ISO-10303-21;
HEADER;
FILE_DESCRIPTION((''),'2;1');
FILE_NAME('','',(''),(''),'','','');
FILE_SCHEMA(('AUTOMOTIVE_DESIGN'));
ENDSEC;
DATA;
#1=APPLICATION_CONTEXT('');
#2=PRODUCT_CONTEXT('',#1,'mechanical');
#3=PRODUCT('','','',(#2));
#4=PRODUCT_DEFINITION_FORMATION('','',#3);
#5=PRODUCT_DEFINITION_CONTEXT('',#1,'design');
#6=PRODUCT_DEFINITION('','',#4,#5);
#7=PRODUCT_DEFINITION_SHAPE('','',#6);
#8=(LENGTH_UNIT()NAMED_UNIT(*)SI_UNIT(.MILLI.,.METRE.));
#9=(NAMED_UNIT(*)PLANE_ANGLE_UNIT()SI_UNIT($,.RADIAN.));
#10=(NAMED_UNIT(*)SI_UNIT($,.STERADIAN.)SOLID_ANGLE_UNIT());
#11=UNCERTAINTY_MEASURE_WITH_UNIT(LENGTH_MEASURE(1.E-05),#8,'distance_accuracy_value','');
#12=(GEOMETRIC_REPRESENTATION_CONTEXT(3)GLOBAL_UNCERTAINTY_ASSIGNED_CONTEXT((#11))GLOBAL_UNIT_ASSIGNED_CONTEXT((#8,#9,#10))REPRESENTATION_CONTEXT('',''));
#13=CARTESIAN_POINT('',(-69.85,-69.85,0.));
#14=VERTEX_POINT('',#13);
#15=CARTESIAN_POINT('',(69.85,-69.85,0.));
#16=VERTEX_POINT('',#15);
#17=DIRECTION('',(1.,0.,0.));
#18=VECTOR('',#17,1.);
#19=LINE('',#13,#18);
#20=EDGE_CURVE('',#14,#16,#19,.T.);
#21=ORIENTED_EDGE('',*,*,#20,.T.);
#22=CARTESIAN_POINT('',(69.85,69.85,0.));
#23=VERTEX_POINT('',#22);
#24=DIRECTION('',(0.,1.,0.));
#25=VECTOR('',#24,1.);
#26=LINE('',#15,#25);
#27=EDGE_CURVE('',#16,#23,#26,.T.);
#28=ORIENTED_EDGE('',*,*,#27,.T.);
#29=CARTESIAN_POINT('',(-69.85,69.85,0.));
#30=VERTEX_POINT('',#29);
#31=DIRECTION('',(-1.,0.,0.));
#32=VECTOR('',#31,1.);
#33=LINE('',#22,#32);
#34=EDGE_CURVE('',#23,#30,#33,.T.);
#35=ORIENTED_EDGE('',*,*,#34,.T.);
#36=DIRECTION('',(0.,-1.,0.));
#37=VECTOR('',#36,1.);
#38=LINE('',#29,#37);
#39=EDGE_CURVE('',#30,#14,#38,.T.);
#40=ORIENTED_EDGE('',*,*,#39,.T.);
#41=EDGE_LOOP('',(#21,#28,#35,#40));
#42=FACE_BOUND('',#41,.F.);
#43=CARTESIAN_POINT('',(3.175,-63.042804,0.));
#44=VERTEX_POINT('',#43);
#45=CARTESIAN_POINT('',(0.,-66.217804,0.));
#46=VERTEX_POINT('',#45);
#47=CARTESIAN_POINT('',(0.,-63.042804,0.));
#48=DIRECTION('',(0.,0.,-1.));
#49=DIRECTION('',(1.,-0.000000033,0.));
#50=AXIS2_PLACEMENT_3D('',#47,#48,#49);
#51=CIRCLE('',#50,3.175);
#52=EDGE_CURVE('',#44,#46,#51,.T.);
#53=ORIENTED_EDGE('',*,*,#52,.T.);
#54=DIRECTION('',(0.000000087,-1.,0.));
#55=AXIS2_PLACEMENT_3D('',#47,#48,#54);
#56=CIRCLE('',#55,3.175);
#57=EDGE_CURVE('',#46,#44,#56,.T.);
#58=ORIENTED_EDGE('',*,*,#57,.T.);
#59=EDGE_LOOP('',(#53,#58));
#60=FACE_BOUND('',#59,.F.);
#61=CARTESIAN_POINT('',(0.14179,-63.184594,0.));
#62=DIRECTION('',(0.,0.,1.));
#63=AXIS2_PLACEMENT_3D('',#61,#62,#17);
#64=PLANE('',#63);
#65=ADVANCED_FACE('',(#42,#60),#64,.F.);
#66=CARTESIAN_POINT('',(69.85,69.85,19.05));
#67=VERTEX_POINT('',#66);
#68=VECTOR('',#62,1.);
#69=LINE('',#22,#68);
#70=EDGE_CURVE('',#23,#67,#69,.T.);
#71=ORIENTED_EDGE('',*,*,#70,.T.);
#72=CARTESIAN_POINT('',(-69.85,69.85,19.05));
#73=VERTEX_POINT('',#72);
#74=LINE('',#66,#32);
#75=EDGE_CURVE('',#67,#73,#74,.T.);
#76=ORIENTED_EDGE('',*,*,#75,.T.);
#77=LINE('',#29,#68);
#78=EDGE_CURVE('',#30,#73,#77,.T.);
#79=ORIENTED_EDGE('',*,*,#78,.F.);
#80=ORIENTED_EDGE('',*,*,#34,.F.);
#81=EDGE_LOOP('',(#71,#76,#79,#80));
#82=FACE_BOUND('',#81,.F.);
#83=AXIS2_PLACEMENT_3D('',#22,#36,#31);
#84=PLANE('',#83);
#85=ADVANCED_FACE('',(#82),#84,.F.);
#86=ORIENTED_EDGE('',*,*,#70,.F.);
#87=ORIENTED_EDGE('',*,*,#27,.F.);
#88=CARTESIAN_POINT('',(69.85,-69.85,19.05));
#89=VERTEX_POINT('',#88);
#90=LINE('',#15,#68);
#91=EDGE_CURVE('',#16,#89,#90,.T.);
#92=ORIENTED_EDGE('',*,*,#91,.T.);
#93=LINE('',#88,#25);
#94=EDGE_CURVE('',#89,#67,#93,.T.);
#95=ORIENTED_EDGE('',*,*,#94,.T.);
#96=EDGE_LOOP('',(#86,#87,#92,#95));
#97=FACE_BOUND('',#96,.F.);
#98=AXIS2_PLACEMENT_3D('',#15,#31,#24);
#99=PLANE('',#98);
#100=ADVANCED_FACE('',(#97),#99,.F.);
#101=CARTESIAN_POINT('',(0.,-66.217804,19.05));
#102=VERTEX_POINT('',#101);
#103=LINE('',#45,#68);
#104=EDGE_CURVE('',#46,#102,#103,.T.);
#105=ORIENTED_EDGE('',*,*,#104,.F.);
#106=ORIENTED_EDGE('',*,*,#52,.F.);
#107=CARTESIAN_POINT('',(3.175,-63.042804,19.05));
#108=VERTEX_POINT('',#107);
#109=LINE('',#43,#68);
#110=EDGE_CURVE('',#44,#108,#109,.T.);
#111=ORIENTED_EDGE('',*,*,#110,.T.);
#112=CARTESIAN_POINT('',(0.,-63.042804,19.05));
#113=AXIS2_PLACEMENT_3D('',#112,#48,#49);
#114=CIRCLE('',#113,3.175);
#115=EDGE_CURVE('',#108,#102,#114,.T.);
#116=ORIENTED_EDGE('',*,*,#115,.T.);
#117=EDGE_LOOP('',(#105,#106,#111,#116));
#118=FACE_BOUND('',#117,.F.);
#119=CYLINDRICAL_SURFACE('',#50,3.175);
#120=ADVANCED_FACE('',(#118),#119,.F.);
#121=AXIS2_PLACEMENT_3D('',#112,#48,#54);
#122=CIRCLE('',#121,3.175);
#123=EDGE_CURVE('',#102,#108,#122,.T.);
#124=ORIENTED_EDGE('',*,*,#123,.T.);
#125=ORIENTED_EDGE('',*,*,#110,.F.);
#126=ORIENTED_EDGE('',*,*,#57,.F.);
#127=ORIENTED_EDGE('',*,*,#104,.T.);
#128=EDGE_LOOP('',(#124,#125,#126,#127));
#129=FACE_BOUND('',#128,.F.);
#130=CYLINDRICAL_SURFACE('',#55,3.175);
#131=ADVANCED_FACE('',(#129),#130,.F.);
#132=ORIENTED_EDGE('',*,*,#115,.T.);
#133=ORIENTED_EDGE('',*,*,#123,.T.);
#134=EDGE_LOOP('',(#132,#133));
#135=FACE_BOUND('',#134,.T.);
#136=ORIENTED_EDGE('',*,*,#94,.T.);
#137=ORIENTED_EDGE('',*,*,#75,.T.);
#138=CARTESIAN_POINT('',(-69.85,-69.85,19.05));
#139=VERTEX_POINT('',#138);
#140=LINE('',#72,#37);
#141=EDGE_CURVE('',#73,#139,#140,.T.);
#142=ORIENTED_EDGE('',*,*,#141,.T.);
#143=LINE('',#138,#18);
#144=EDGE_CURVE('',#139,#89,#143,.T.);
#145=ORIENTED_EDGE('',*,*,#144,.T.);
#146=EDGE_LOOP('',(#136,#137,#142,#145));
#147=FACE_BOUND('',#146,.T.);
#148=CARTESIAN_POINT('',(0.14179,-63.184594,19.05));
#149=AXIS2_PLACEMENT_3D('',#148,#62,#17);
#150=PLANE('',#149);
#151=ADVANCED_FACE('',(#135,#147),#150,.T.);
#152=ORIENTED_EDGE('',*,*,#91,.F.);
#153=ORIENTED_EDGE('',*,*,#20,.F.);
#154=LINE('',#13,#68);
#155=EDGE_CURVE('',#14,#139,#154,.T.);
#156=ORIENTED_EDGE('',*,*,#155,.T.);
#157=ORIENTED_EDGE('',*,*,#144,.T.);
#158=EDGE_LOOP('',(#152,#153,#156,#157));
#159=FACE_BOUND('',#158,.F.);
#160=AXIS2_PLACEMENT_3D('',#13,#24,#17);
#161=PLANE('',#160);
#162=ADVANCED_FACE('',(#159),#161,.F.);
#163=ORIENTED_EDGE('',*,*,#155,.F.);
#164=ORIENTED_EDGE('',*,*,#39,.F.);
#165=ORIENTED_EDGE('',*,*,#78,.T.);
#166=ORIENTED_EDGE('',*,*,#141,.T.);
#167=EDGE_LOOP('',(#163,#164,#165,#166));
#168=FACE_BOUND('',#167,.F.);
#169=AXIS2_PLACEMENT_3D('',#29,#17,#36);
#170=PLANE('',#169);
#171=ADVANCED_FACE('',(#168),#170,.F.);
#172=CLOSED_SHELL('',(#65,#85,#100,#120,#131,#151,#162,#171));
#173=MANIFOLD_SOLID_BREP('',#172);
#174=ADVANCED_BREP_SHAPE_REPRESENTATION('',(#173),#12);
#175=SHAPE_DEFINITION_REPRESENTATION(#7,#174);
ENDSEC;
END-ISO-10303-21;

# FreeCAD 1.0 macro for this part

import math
import FreeCAD as App
import Part
import Sketcher
Q = App.Units.Quantity

doc = App.newDocument("Part")
params = doc.addObject("Spreadsheet::Sheet", "Params")
for row, (alias, value) in enumerate([
    ("sketch1_width", "5.5 in"),
    ("sketch1_radius", "0.125 in"),
    ("pad1_length", "0.75 in"),
], start=1):
    params.set(f"A{row}", alias)
    params.set(f"B{row}", "=" + value)
    params.setAlias(f"B{row}", alias)

body = doc.addObject("PartDesign::Body", "Body")

sketch1 = doc.addObject("Sketcher::SketchObject", "Sketch")
body.addObject(sketch1)
sketch1.AttachmentSupport = (doc.XY_Plane, [""])
sketch1.MapMode = "FlatFace"
sketch1.addGeometry([
    Part.LineSegment(App.Vector(-69.8, -69.8, 0), App.Vector(69.8, -69.8, 0)),
    Part.LineSegment(App.Vector(69.8, -69.8, 0), App.Vector(69.8, 69.8, 0)),
    Part.LineSegment(App.Vector(69.8, 69.8, 0), App.Vector(-69.8, 69.8, 0)),
    Part.LineSegment(App.Vector(-69.8, 69.8, 0), App.Vector(-69.8, -69.8, 0)),
    Part.ArcOfCircle(Part.Circle(App.Vector(0, -63, 0), App.Vector(0, 0, 1), 3.2), math.radians(0), math.radians(270)),
    Part.ArcOfCircle(Part.Circle(App.Vector(0, -63, 0), App.Vector(0, 0, 1), 3.2), math.radians(-90), math.radians(0)),
], False)
sketch1.addConstraint([
    Sketcher.Constraint("Coincident", 0, 2, 1, 1),
    Sketcher.Constraint("Coincident", 1, 2, 2, 1),
    Sketcher.Constraint("Coincident", 2, 2, 3, 1),
    Sketcher.Constraint("Coincident", 3, 2, 0, 1),
    Sketcher.Constraint("Tangent", 4, 1, 5, 2),
    Sketcher.Constraint("Coincident", 5, 1, 4, 2),
    Sketcher.Constraint("Horizontal", 0),
    Sketcher.Constraint("Vertical", 1),
    Sketcher.Constraint("Horizontal", 2),
    Sketcher.Constraint("Vertical", 3),
    Sketcher.Constraint("Symmetric", 0, 2, 2, 2, -1, 1),
    Sketcher.Constraint("PointOnObject", 4, 3, -2),
    Sketcher.Constraint("PointOnObject", 5, 1, -2),
    Sketcher.Constraint("Horizontal", 5, 3, 4, 1),
    Sketcher.Constraint("Equal", 2, 1),
    Sketcher.Constraint("DistanceX", 0, 1, 0, 2, Q("5.5 in")),
    Sketcher.Constraint("Radius", 4, Q("0.125 in")),
    Sketcher.Constraint("DistanceY", 4, 3, -1, 1, Q("2.4820001 in")),
])
sketch1.setExpression("Constraints[15]", "Params.sketch1_width")
sketch1.setExpression("Constraints[16]", "Params.sketch1_radius")
pad1 = doc.addObject("PartDesign::Pad", "Pad")
body.addObject(pad1)
pad1.Profile = sketch1
pad1.setExpression("Length", "Params.pad1_length")

doc.recompute()
